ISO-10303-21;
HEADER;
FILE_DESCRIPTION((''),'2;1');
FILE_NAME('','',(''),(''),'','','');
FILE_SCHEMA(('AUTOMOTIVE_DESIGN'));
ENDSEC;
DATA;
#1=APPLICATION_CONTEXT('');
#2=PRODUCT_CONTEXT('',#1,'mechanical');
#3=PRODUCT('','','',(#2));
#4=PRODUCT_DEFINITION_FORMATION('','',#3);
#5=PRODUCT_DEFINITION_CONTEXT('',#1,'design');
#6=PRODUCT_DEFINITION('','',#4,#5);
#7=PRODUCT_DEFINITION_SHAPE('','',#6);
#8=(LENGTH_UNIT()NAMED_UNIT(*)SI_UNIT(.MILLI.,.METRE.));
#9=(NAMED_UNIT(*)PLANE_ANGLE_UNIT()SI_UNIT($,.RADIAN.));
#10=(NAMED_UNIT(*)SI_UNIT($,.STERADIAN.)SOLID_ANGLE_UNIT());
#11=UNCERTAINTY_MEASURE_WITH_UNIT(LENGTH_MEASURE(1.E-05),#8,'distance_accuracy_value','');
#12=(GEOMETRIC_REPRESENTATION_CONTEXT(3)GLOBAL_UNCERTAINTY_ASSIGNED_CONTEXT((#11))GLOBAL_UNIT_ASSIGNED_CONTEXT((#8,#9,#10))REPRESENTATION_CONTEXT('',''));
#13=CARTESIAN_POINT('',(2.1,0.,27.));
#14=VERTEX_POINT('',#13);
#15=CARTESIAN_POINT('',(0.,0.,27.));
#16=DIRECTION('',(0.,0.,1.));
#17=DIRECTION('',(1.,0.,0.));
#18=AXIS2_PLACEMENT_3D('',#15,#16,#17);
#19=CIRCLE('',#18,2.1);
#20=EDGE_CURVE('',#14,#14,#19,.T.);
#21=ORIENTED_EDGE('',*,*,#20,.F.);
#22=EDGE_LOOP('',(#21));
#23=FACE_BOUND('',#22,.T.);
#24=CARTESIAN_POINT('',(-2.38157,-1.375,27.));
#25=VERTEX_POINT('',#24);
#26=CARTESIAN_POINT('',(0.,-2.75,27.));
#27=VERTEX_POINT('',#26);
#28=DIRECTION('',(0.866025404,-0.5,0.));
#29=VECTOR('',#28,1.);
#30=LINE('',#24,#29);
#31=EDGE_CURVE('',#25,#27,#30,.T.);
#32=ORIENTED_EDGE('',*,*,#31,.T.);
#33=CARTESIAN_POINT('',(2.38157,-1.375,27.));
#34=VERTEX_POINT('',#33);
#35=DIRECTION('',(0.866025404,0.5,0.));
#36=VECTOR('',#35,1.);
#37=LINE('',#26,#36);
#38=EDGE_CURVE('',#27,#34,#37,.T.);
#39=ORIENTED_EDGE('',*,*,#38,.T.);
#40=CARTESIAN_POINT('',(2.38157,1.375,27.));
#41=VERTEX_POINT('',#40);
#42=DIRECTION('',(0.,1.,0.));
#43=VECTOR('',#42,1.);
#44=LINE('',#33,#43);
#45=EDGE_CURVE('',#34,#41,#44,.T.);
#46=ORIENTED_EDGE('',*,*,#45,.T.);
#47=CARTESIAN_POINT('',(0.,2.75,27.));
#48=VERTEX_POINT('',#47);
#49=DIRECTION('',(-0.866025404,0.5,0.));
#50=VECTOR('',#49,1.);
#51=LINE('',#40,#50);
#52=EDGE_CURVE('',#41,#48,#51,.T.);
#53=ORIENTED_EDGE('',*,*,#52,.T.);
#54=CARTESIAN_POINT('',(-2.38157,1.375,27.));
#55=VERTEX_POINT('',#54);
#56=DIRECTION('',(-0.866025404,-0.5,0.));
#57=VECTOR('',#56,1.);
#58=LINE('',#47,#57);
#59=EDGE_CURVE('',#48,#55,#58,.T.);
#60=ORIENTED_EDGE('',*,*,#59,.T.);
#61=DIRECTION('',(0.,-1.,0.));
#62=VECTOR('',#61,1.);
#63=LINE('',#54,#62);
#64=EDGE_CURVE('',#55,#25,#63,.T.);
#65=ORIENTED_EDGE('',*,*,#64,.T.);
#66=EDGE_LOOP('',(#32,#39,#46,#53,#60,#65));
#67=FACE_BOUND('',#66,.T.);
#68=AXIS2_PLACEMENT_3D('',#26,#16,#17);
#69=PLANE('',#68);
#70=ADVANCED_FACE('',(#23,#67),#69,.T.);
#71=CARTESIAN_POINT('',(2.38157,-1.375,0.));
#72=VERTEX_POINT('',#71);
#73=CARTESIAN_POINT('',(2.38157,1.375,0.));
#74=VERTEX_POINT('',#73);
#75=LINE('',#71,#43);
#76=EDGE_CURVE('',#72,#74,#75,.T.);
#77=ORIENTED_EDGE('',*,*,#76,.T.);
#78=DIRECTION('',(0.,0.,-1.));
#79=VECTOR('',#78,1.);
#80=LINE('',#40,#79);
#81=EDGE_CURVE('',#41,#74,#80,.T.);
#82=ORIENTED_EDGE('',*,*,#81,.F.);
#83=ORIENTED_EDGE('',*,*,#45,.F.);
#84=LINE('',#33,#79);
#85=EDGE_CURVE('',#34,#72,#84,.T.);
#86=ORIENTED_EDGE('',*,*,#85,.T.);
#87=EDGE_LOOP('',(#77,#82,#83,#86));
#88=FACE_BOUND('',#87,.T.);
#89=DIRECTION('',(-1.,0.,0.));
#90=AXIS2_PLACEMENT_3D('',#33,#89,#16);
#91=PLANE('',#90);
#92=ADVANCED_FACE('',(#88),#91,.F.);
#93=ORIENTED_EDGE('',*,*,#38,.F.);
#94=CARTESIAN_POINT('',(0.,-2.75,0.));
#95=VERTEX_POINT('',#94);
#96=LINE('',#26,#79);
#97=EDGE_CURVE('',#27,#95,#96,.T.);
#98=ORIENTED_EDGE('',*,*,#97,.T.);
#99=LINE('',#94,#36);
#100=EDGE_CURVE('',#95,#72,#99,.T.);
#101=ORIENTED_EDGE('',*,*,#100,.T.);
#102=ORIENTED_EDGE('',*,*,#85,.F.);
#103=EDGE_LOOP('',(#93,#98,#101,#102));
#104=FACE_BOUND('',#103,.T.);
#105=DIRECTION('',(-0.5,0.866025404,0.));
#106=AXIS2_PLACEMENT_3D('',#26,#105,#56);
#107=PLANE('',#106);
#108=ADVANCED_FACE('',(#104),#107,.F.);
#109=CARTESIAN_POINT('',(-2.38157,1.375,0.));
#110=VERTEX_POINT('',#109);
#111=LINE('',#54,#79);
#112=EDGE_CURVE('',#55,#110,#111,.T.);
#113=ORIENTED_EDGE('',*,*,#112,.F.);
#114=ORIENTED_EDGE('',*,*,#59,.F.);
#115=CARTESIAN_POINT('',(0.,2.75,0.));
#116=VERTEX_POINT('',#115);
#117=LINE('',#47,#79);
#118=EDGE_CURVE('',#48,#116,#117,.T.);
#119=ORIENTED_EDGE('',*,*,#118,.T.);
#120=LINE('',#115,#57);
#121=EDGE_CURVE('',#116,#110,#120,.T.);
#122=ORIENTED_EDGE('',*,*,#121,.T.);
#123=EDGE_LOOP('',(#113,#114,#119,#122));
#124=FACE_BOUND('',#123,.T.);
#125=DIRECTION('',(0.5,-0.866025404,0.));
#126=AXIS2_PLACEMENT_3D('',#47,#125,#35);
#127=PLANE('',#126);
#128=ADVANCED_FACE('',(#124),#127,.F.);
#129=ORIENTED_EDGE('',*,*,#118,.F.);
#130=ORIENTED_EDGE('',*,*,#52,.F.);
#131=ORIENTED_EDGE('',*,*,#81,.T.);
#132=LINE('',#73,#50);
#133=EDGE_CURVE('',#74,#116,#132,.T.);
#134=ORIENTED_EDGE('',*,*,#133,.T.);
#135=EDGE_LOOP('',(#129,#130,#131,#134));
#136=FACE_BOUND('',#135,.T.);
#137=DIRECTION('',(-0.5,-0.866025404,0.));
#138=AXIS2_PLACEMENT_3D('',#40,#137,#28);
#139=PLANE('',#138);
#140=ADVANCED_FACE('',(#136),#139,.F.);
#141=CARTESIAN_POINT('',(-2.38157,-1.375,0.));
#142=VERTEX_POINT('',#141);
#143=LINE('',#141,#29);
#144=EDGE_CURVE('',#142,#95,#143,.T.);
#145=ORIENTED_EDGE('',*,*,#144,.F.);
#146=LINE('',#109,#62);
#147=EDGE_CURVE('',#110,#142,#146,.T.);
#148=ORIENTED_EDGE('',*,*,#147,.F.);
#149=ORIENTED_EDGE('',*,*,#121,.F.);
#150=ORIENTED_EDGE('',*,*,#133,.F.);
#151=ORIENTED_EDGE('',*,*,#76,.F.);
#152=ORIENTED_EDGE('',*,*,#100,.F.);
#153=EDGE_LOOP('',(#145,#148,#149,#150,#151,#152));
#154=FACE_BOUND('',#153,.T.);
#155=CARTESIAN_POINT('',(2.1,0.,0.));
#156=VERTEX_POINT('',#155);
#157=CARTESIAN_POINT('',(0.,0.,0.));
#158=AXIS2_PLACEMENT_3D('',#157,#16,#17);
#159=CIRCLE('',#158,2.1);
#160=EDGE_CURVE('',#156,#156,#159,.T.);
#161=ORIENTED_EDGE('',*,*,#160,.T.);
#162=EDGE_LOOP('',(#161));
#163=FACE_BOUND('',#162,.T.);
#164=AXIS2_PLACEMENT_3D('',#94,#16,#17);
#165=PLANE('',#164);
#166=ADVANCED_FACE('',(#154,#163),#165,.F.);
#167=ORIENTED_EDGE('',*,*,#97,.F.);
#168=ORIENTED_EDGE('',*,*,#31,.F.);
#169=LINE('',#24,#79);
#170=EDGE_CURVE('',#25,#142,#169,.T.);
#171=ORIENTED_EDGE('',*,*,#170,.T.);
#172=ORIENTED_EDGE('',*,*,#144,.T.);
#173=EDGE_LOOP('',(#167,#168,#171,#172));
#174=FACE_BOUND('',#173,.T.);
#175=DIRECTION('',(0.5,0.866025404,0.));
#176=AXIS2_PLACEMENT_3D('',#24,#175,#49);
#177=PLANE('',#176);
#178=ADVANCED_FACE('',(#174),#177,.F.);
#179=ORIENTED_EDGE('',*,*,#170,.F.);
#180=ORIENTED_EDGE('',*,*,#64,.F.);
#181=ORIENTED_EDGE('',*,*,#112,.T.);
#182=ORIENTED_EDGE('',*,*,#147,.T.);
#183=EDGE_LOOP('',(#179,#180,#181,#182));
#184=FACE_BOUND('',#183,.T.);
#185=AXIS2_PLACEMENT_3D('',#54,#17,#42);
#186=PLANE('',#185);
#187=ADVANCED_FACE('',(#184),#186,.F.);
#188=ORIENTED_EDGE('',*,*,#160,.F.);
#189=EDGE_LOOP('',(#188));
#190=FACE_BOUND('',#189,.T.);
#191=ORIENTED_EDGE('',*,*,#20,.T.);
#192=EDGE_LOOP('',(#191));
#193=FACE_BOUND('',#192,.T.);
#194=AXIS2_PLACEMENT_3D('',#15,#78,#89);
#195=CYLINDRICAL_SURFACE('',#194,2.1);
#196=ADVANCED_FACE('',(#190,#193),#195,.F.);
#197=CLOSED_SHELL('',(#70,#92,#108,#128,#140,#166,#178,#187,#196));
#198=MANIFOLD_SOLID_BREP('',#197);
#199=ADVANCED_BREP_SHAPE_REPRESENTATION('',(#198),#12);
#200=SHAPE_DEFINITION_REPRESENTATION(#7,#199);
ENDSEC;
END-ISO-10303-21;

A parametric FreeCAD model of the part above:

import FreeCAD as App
import Part
import Sketcher

V = App.Vector
Q = App.Units.Quantity

doc = App.newDocument("Part")
body = doc.addObject("PartDesign::Body", "Body")

sketch1 = body.newObject("Sketcher::SketchObject", "Sketch")
sketch1.AttachmentSupport = (doc.getObject("XY_Plane"), [""])
sketch1.MapMode = "FlatFace"
sketch1.addGeometry([
    Part.LineSegment(V(0, -2.8, 0), V(2.4, -1.4, 0)),
    Part.LineSegment(V(2.4, -1.4, 0), V(2.4, 1.4, 0)),
    Part.LineSegment(V(2.4, 1.4, 0), V(0, 2.8, 0)),
    Part.LineSegment(V(0, 2.8, 0), V(-2.4, 1.4, 0)),
    Part.LineSegment(V(-2.4, 1.4, 0), V(-2.4, -1.4, 0)),
    Part.LineSegment(V(-2.4, -1.4, 0), V(0, -2.8, 0)),
    Part.Circle(V(0, 0, 0), V(0, 0, 1), 2.1),
], False)
sketch1.addConstraint([
    Sketcher.Constraint("Coincident", 0, 2, 1, 1),
    Sketcher.Constraint("Coincident", 1, 2, 2, 1),
    Sketcher.Constraint("Coincident", 2, 2, 3, 1),
    Sketcher.Constraint("Coincident", 3, 2, 4, 1),
    Sketcher.Constraint("Coincident", 4, 2, 5, 1),
    Sketcher.Constraint("Coincident", 5, 2, 0, 1),
    Sketcher.Constraint("Vertical", 1),
    Sketcher.Constraint("Vertical", 4),
    Sketcher.Constraint("Coincident", 6, 3, -1, 1),
    Sketcher.Constraint("Symmetric", 0, 2, 3, 2, -1, 1),
    Sketcher.Constraint("Symmetric", 2, 2, 5, 2, -1, 1),
    Sketcher.Constraint("PointOnObject", 2, 2, -2),
    Sketcher.Constraint("Parallel", 2, 5),
    Sketcher.Constraint("Horizontal", 1, 2, 3, 2),
    Sketcher.Constraint("Diameter", 6, Q("4.2 mm")),
    Sketcher.Constraint("Angle", 0, Q("30 deg")),
    Sketcher.Constraint("DistanceY", 1, 1, 1, 2, Q("2.75 mm")),
    Sketcher.Constraint("Distance", 0, Q("2.75 mm")),
])
pad1 = body.newObject("PartDesign::Pad", "Pad")
pad1.Profile = sketch1
pad1.Length = 27

doc.recompute()
